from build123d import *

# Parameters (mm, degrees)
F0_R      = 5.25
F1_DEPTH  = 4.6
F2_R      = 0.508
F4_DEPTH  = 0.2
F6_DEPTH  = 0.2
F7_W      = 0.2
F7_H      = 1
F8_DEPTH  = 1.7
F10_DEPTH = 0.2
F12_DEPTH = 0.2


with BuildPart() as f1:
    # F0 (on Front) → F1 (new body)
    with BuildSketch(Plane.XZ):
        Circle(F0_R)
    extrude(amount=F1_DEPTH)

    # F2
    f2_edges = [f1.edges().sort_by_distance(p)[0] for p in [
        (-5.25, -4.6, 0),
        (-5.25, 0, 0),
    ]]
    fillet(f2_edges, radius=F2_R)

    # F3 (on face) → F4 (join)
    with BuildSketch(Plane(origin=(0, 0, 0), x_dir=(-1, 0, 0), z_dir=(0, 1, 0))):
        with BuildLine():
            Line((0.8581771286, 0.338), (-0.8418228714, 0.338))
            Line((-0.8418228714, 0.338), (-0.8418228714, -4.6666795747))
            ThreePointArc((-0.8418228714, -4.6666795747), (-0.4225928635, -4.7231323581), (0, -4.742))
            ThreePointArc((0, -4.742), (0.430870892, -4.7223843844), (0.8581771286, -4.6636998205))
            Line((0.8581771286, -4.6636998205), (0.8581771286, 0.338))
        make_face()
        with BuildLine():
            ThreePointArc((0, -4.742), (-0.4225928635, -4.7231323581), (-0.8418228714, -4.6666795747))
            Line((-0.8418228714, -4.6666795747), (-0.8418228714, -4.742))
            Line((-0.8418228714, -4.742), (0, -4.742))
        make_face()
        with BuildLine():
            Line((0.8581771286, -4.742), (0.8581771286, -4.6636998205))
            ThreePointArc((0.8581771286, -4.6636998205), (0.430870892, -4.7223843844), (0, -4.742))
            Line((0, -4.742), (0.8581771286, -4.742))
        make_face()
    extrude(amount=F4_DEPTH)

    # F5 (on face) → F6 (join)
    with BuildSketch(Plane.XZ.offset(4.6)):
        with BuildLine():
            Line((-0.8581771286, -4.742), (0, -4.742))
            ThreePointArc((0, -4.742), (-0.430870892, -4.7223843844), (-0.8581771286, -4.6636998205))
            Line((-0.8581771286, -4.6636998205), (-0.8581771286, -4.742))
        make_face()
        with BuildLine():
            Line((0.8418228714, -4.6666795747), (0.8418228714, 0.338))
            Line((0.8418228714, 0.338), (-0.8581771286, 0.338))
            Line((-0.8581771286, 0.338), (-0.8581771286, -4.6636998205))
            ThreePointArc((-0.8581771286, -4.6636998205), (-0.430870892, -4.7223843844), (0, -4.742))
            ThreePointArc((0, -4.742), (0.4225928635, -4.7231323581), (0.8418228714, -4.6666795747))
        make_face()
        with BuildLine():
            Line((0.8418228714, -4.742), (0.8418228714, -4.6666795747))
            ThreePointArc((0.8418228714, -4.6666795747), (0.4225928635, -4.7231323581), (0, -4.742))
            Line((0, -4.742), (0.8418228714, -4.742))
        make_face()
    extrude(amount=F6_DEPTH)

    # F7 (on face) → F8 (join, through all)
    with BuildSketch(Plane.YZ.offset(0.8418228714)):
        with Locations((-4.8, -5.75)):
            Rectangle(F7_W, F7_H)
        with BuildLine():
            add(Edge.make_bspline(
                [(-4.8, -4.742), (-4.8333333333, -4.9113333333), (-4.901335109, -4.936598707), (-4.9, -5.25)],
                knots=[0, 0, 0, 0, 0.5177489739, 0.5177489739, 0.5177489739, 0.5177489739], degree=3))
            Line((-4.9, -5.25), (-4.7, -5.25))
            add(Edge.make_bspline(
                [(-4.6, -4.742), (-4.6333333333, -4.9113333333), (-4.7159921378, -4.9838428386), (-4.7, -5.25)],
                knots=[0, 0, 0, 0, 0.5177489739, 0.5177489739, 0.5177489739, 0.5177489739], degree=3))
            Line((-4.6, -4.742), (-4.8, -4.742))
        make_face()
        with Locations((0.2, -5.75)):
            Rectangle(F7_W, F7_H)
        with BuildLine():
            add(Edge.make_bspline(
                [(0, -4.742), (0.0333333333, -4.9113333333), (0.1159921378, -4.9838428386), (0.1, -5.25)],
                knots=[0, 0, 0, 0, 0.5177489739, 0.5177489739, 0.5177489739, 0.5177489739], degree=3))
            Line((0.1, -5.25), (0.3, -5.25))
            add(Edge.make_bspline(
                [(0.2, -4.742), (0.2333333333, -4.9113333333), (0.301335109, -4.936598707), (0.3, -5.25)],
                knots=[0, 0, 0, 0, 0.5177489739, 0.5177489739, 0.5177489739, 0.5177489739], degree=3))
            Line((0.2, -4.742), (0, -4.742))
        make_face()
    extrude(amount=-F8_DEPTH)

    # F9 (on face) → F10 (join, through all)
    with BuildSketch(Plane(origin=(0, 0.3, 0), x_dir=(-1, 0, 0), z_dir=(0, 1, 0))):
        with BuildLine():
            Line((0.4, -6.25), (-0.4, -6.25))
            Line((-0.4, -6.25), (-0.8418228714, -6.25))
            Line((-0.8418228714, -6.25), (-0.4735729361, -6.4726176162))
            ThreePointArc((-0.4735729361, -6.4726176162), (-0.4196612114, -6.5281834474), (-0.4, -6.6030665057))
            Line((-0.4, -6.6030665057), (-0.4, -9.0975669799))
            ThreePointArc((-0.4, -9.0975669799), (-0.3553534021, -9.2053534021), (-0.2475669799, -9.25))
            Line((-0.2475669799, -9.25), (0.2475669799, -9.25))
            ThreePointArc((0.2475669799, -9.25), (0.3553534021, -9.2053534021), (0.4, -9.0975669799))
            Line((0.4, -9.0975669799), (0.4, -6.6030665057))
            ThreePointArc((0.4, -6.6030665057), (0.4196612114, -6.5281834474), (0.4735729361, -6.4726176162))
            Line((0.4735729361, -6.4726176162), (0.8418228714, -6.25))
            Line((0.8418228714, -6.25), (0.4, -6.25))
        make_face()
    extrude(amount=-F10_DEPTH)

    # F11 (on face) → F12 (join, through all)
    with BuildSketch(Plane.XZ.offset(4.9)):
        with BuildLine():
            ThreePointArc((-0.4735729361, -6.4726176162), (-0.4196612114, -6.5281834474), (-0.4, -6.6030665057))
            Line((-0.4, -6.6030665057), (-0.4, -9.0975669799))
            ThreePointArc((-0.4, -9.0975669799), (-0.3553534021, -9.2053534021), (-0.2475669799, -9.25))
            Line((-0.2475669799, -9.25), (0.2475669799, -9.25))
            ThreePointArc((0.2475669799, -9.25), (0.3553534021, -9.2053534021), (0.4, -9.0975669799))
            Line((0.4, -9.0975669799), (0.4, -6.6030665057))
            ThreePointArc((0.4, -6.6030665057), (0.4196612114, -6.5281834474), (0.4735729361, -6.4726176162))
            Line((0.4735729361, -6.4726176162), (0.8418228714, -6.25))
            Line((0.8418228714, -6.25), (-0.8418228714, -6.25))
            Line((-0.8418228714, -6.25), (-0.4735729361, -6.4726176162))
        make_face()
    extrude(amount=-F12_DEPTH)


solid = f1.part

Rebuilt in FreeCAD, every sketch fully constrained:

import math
import FreeCAD as App
import Part
import Sketcher
Q = App.Units.Quantity


def edges_at(feature, points):
    """Names of the edges that pass closest to the given points."""
    edges = feature.Shape.Edges
    near = lambda p: min(range(len(edges)), key=lambda i: edges[i].distToShape(Part.Vertex(*p))[0])
    return sorted({f"Edge{near(p) + 1}" for p in points})


def add_polygon(sketch, points):
    """Adds a closed chain of lines whose ends are joined by coincident constraints."""
    first, n = sketch.GeometryCount, len(points)
    for a, b in zip(points, points[1:] + points[:1]):
        sketch.addGeometry(Part.LineSegment(App.Vector(*a, 0), App.Vector(*b, 0)), False)
    for i in range(n):
        sketch.addConstraint(Sketcher.Constraint("Coincident", first + i, 2, first + (i + 1) % n, 1))

doc = App.newDocument("Part")
params = doc.addObject("Spreadsheet::Sheet", "Params")
for row, (alias, value) in enumerate([
    ("sketch1_diameter", "10.5 mm"),
    ("pad1_length", "4.6 mm"),
    ("fillet_radius", "0.508 mm"),
    ("sketch2_width", "1.7 mm"),
    ("sketch2_height", "5.08 mm"),
    ("pad2_length", "0.2 mm"),
    ("sketch3_width", "1.7 mm"),
    ("sketch3_height", "5.08 mm"),
    ("pad3_length", "0.2 mm"),
    ("sketch4_height", "1 mm"),
    ("pad4_length", "1.7 mm"),
    ("pad5_length", "0.2 mm"),
    ("pad6_length", "0.2 mm"),
], start=1):
    params.set(f"A{row}", alias)
    params.set(f"B{row}", "=" + value)
    params.setAlias(f"B{row}", alias)

body = doc.addObject("PartDesign::Body", "Body")

sketch1 = doc.addObject("Sketcher::SketchObject", "Sketch")
body.addObject(sketch1)
sketch1.AttachmentSupport = (doc.XZ_Plane, [""])
sketch1.MapMode = "FlatFace"
sketch1.addGeometry(Part.Circle(App.Vector(0, 0, 0), App.Vector(0, 0, 1), 5.25), False)
sketch1.addConstraint([
    Sketcher.Constraint("Coincident", 0, 3, -1, 1),
    Sketcher.Constraint("Diameter", 0, Q("10.5 mm")),
])
sketch1.setExpression("Constraints[1]", "Params.sketch1_diameter")
pad1 = doc.addObject("PartDesign::Pad", "Pad")
body.addObject(pad1)
pad1.Profile = sketch1
pad1.setExpression("Length", "Params.pad1_length")
doc.recompute()

fillet = doc.addObject("PartDesign::Fillet", "Fillet")
body.addObject(fillet)
fillet.Base = (pad1, edges_at(pad1, [(-5.25, -4.6, 0), (-5.25, 0, 0)]))
fillet.setExpression("Radius", "Params.fillet_radius")

sketch2 = doc.addObject("Sketcher::SketchObject", "Sketch001")
body.addObject(sketch2)
sketch2.AttachmentSupport = (doc.XZ_Plane, [""])
sketch2.MapMode = "FlatFace"
add_polygon(sketch2, [(-0.858177, 0.338), (0.841823, 0.338), (0.841823, -4.742), (-0.858177, -4.742)])
sketch2.addConstraint([
    Sketcher.Constraint("Horizontal", 0),
    Sketcher.Constraint("Vertical", 1),
    Sketcher.Constraint("Horizontal", 2),
    Sketcher.Constraint("Vertical", 3),
    Sketcher.Constraint("DistanceX", 0, 1, 0, 2, Q("1.7 mm")),
    Sketcher.Constraint("DistanceY", 1, 2, 1, 1, Q("5.08 mm")),
    Sketcher.Constraint("DistanceY", -1, 1, 0, 2, Q("0.338 mm")),
    Sketcher.Constraint("DistanceX", -1, 1, 0, 2, Q("0.841823 mm")),
])
sketch2.setExpression("Constraints[8]", "Params.sketch2_width")
sketch2.setExpression("Constraints[9]", "Params.sketch2_height")
pad2 = doc.addObject("PartDesign::Pad", "Pad001")
body.addObject(pad2)
pad2.Profile = sketch2
pad2.setExpression("Length", "Params.pad2_length")
pad2.Reversed = True

sketch3 = doc.addObject("Sketcher::SketchObject", "Sketch002")
body.addObject(sketch3)
sketch3.AttachmentSupport = (doc.XZ_Plane, [""])
sketch3.MapMode = "FlatFace"
sketch3.AttachmentOffset = App.Placement(App.Vector(0, 0, 4.6), App.Rotation())
add_polygon(sketch3, [(-0.858177, -4.742), (0.841823, -4.742), (0.841823, 0.338), (-0.858177, 0.338)])
sketch3.addConstraint([
    Sketcher.Constraint("Horizontal", 0),
    Sketcher.Constraint("Vertical", 1),
    Sketcher.Constraint("Horizontal", 2),
    Sketcher.Constraint("Vertical", 3),
    Sketcher.Constraint("DistanceX", 0, 1, 0, 2, Q("1.7 mm")),
    Sketcher.Constraint("DistanceY", 1, 1, 1, 2, Q("5.08 mm")),
    Sketcher.Constraint("DistanceY", 0, 2, -1, 1, Q("4.742 mm")),
    Sketcher.Constraint("DistanceX", -1, 1, 0, 2, Q("0.841823 mm")),
])
sketch3.setExpression("Constraints[8]", "Params.sketch3_width")
sketch3.setExpression("Constraints[9]", "Params.sketch3_height")
pad3 = doc.addObject("PartDesign::Pad", "Pad002")
body.addObject(pad3)
pad3.Profile = sketch3
pad3.setExpression("Length", "Params.pad3_length")

sketch4 = doc.addObject("Sketcher::SketchObject", "Sketch003")
body.addObject(sketch4)
sketch4.AttachmentSupport = (doc.YZ_Plane, [""])
sketch4.MapMode = "FlatFace"
sketch4.AttachmentOffset = App.Placement(App.Vector(0, 0, 0.841823), App.Rotation())
sketch4.addGeometry([
    Part.LineSegment(App.Vector(-4.9, -5.25, 0), App.Vector(-4.9, -6.25, 0)),
    Part.LineSegment(App.Vector(-4.9, -6.25, 0), App.Vector(-4.7, -6.25, 0)),
    Part.LineSegment(App.Vector(-4.7, -6.25, 0), App.Vector(-4.7, -5.25, 0)),
    Part.BSplineCurve([App.Vector(-4.6, -4.742, 0), App.Vector(-4.633333, -4.911333, 0), App.Vector(-4.715992, -4.983843, 0), App.Vector(-4.7, -5.25, 0)], [4, 4], [0, 0.517748974], False, 3, [1, 1, 1, 1], False),
    Part.LineSegment(App.Vector(-4.6, -4.742, 0), App.Vector(-4.8, -4.742, 0)),
    Part.BSplineCurve([App.Vector(-4.8, -4.742, 0), App.Vector(-4.833333, -4.911333, 0), App.Vector(-4.901335, -4.936599, 0), App.Vector(-4.9, -5.25, 0)], [4, 4], [0, 0.517748974], False, 3, [1, 1, 1, 1], False),
    Part.LineSegment(App.Vector(0.1, -5.25, 0), App.Vector(0.1, -6.25, 0)),
    Part.LineSegment(App.Vector(0.1, -6.25, 0), App.Vector(0.3, -6.25, 0)),
    Part.LineSegment(App.Vector(0.3, -6.25, 0), App.Vector(0.3, -5.25, 0)),
    Part.BSplineCurve([App.Vector(0.2, -4.742, 0), App.Vector(0.233333, -4.911333, 0), App.Vector(0.301335, -4.936599, 0), App.Vector(0.3, -5.25, 0)], [4, 4], [0, 0.517748974], False, 3, [1, 1, 1, 1], False),
    Part.LineSegment(App.Vector(0.2, -4.742, 0), App.Vector(0, -4.742, 0)),
    Part.BSplineCurve([App.Vector(0, -4.742, 0), App.Vector(0.033333, -4.911333, 0), App.Vector(0.115992, -4.983843, 0), App.Vector(0.1, -5.25, 0)], [4, 4], [0, 0.517748974], False, 3, [1, 1, 1, 1], False),
], False)
sketch4.addConstraint([
    Sketcher.Constraint("Block", 3),
    Sketcher.Constraint("Block", 5),
    Sketcher.Constraint("Block", 9),
    Sketcher.Constraint("Block", 11),
    Sketcher.Constraint("Coincident", 0, 2, 1, 1),
    Sketcher.Constraint("Coincident", 1, 2, 2, 1),
    Sketcher.Constraint("Coincident", 2, 2, 3, 2),
    Sketcher.Constraint("Coincident", 3, 1, 4, 1),
    Sketcher.Constraint("Coincident", 4, 2, 5, 1),
    Sketcher.Constraint("Coincident", 5, 2, 0, 1),
    Sketcher.Constraint("Coincident", 6, 2, 7, 1),
    Sketcher.Constraint("Coincident", 7, 2, 8, 1),
    Sketcher.Constraint("Coincident", 8, 2, 9, 2),
    Sketcher.Constraint("Coincident", 9, 1, 10, 1),
    Sketcher.Constraint("Coincident", 10, 2, 11, 1),
    Sketcher.Constraint("Coincident", 11, 2, 6, 1),
    Sketcher.Constraint("Vertical", 0),
    Sketcher.Constraint("Horizontal", 1),
    Sketcher.Constraint("Vertical", 2),
    Sketcher.Constraint("Vertical", 6),
    Sketcher.Constraint("Horizontal", 7),
    Sketcher.Constraint("Vertical", 8),
    Sketcher.Constraint("Horizontal", 1, 2, 6, 2),
    Sketcher.Constraint("DistanceY", 0, 2, 0, 1, Q("1 mm")),
])
sketch4.setExpression("Constraints[23]", "Params.sketch4_height")
pad4 = doc.addObject("PartDesign::Pad", "Pad003")
body.addObject(pad4)
pad4.Profile = sketch4
pad4.setExpression("Length", "Params.pad4_length")
pad4.Reversed = True

sketch5 = doc.addObject("Sketcher::SketchObject", "Sketch004")
body.addObject(sketch5)
sketch5.AttachmentSupport = (doc.XZ_Plane, [""])
sketch5.MapMode = "FlatFace"
sketch5.AttachmentOffset = App.Placement(App.Vector(0, 0, -0.3), App.Rotation())
sketch5.addGeometry([
    Part.LineSegment(App.Vector(0.841823, -6.25, 0), App.Vector(0.473573, -6.472618, 0)),
    Part.ArcOfCircle(Part.Circle(App.Vector(0.552433, -6.603067, 0), App.Vector(0, 0, 1), 0.152433), math.radians(121.154162), math.radians(180)),
    Part.LineSegment(App.Vector(0.4, -6.603067, 0), App.Vector(0.4, -9.097567, 0)),
    Part.ArcOfCircle(Part.Circle(App.Vector(0.247567, -9.097567, 0), App.Vector(0, 0, 1), 0.152433), math.radians(-90), math.radians(0)),
    Part.LineSegment(App.Vector(0.247567, -9.25, 0), App.Vector(-0.247567, -9.25, 0)),
    Part.ArcOfCircle(Part.Circle(App.Vector(-0.247567, -9.097567, 0), App.Vector(0, 0, 1), 0.152433), math.radians(180), math.radians(270)),
    Part.LineSegment(App.Vector(-0.4, -9.097567, 0), App.Vector(-0.4, -6.603067, 0)),
    Part.ArcOfCircle(Part.Circle(App.Vector(-0.552433, -6.603067, 0), App.Vector(0, 0, 1), 0.152433), math.radians(0), math.radians(58.845838)),
    Part.LineSegment(App.Vector(-0.473573, -6.472618, 0), App.Vector(-0.841823, -6.25, 0)),
    Part.LineSegment(App.Vector(-0.841823, -6.25, 0), App.Vector(0.841823, -6.25, 0)),
], False)
sketch5.addConstraint([
    Sketcher.Constraint("Tangent", 0, 2, 1, 1),
    Sketcher.Constraint("Tangent", 1, 2, 2, 1),
    Sketcher.Constraint("Tangent", 2, 2, 3, 2),
    Sketcher.Constraint("Tangent", 3, 1, 4, 1),
    Sketcher.Constraint("Tangent", 4, 2, 5, 2),
    Sketcher.Constraint("Tangent", 5, 1, 6, 1),
    Sketcher.Constraint("Tangent", 6, 2, 7, 1),
    Sketcher.Constraint("Tangent", 7, 2, 8, 1),
    Sketcher.Constraint("Coincident", 8, 2, 9, 1),
    Sketcher.Constraint("Coincident", 9, 2, 0, 1),
    Sketcher.Constraint("Vertical", 2),
    Sketcher.Constraint("Horizontal", 4),
    Sketcher.Constraint("Vertical", 6),
    Sketcher.Constraint("Horizontal", 9),
    Sketcher.Constraint("Equal", 1, 3),
    Sketcher.Constraint("Equal", 3, 5),
    Sketcher.Constraint("Equal", 5, 7),
    Sketcher.Constraint("Symmetric", 1, 3, 7, 3, -2),
    Sketcher.Constraint("Horizontal", 0, 2, 7, 2),
    Sketcher.Constraint("DistanceX", -1, 1, 1, 2, Q("0.4 mm")),
    Sketcher.Constraint("DistanceY", 3, 1, -1, 1, Q("9.25 mm")),
    Sketcher.Constraint("DistanceY", 8, 2, -1, 1, Q("6.25 mm")),
    Sketcher.Constraint("DistanceY", 2, 2, 2, 1, Q("2.4945 mm")),
    Sketcher.Constraint("Radius", 1, Q("0.152433 mm")),
    Sketcher.Constraint("Distance", 0, Q("0.43031 mm")),
])
pad5 = doc.addObject("PartDesign::Pad", "Pad004")
body.addObject(pad5)
pad5.Profile = sketch5
pad5.setExpression("Length", "Params.pad5_length")

sketch6 = doc.addObject("Sketcher::SketchObject", "Sketch005")
body.addObject(sketch6)
sketch6.AttachmentSupport = (doc.XZ_Plane, [""])
sketch6.MapMode = "FlatFace"
sketch6.AttachmentOffset = App.Placement(App.Vector(0, 0, 4.9), App.Rotation())
sketch6.addGeometry([
    Part.ArcOfCircle(Part.Circle(App.Vector(-0.552433, -6.603067, 0), App.Vector(0, 0, 1), 0.152433), math.radians(0), math.radians(58.845838)),
    Part.LineSegment(App.Vector(-0.4, -6.603067, 0), App.Vector(-0.4, -9.097567, 0)),
    Part.ArcOfCircle(Part.Circle(App.Vector(-0.247567, -9.097567, 0), App.Vector(0, 0, 1), 0.152433), math.radians(180), math.radians(270)),
    Part.LineSegment(App.Vector(-0.247567, -9.25, 0), App.Vector(0.247567, -9.25, 0)),
    Part.ArcOfCircle(Part.Circle(App.Vector(0.247567, -9.097567, 0), App.Vector(0, 0, 1), 0.152433), math.radians(-90), math.radians(0)),
    Part.LineSegment(App.Vector(0.4, -9.097567, 0), App.Vector(0.4, -6.603067, 0)),
    Part.ArcOfCircle(Part.Circle(App.Vector(0.552433, -6.603067, 0), App.Vector(0, 0, 1), 0.152433), math.radians(121.154162), math.radians(180)),
    Part.LineSegment(App.Vector(0.473573, -6.472618, 0), App.Vector(0.841823, -6.25, 0)),
    Part.LineSegment(App.Vector(0.841823, -6.25, 0), App.Vector(-0.841823, -6.25, 0)),
    Part.LineSegment(App.Vector(-0.841823, -6.25, 0), App.Vector(-0.473573, -6.472618, 0)),
], False)
sketch6.addConstraint([
    Sketcher.Constraint("Tangent", 0, 1, 1, 1),
    Sketcher.Constraint("Tangent", 1, 2, 2, 1),
    Sketcher.Constraint("Tangent", 2, 2, 3, 1),
    Sketcher.Constraint("Tangent", 3, 2, 4, 1),
    Sketcher.Constraint("Tangent", 4, 2, 5, 1),
    Sketcher.Constraint("Tangent", 5, 2, 6, 2),
    Sketcher.Constraint("Tangent", 6, 1, 7, 1),
    Sketcher.Constraint("Coincident", 7, 2, 8, 1),
    Sketcher.Constraint("Coincident", 8, 2, 9, 1),
    Sketcher.Constraint("Tangent", 9, 2, 0, 2),
    Sketcher.Constraint("Vertical", 1),
    Sketcher.Constraint("Horizontal", 3),
    Sketcher.Constraint("Vertical", 5),
    Sketcher.Constraint("Horizontal", 8),
    Sketcher.Constraint("Equal", 0, 2),
    Sketcher.Constraint("Equal", 2, 4),
    Sketcher.Constraint("Equal", 4, 6),
    Sketcher.Constraint("Symmetric", 0, 3, 6, 3, -2),
    Sketcher.Constraint("Horizontal", 6, 1, 9, 2),
    Sketcher.Constraint("DistanceX", 0, 1, -1, 1, Q("0.4 mm")),
    Sketcher.Constraint("DistanceY", 2, 2, -1, 1, Q("9.25 mm")),
    Sketcher.Constraint("DistanceY", 7, 2, -1, 1, Q("6.25 mm")),
    Sketcher.Constraint("DistanceY", 1, 2, 1, 1, Q("2.4945 mm")),
    Sketcher.Constraint("Radius", 0, Q("0.152433 mm")),
    Sketcher.Constraint("Distance", 7, Q("0.43031 mm")),
])
pad6 = doc.addObject("PartDesign::Pad", "Pad005")
body.addObject(pad6)
pad6.Profile = sketch6
pad6.setExpression("Length", "Params.pad6_length")
pad6.Reversed = True

doc.recompute()
